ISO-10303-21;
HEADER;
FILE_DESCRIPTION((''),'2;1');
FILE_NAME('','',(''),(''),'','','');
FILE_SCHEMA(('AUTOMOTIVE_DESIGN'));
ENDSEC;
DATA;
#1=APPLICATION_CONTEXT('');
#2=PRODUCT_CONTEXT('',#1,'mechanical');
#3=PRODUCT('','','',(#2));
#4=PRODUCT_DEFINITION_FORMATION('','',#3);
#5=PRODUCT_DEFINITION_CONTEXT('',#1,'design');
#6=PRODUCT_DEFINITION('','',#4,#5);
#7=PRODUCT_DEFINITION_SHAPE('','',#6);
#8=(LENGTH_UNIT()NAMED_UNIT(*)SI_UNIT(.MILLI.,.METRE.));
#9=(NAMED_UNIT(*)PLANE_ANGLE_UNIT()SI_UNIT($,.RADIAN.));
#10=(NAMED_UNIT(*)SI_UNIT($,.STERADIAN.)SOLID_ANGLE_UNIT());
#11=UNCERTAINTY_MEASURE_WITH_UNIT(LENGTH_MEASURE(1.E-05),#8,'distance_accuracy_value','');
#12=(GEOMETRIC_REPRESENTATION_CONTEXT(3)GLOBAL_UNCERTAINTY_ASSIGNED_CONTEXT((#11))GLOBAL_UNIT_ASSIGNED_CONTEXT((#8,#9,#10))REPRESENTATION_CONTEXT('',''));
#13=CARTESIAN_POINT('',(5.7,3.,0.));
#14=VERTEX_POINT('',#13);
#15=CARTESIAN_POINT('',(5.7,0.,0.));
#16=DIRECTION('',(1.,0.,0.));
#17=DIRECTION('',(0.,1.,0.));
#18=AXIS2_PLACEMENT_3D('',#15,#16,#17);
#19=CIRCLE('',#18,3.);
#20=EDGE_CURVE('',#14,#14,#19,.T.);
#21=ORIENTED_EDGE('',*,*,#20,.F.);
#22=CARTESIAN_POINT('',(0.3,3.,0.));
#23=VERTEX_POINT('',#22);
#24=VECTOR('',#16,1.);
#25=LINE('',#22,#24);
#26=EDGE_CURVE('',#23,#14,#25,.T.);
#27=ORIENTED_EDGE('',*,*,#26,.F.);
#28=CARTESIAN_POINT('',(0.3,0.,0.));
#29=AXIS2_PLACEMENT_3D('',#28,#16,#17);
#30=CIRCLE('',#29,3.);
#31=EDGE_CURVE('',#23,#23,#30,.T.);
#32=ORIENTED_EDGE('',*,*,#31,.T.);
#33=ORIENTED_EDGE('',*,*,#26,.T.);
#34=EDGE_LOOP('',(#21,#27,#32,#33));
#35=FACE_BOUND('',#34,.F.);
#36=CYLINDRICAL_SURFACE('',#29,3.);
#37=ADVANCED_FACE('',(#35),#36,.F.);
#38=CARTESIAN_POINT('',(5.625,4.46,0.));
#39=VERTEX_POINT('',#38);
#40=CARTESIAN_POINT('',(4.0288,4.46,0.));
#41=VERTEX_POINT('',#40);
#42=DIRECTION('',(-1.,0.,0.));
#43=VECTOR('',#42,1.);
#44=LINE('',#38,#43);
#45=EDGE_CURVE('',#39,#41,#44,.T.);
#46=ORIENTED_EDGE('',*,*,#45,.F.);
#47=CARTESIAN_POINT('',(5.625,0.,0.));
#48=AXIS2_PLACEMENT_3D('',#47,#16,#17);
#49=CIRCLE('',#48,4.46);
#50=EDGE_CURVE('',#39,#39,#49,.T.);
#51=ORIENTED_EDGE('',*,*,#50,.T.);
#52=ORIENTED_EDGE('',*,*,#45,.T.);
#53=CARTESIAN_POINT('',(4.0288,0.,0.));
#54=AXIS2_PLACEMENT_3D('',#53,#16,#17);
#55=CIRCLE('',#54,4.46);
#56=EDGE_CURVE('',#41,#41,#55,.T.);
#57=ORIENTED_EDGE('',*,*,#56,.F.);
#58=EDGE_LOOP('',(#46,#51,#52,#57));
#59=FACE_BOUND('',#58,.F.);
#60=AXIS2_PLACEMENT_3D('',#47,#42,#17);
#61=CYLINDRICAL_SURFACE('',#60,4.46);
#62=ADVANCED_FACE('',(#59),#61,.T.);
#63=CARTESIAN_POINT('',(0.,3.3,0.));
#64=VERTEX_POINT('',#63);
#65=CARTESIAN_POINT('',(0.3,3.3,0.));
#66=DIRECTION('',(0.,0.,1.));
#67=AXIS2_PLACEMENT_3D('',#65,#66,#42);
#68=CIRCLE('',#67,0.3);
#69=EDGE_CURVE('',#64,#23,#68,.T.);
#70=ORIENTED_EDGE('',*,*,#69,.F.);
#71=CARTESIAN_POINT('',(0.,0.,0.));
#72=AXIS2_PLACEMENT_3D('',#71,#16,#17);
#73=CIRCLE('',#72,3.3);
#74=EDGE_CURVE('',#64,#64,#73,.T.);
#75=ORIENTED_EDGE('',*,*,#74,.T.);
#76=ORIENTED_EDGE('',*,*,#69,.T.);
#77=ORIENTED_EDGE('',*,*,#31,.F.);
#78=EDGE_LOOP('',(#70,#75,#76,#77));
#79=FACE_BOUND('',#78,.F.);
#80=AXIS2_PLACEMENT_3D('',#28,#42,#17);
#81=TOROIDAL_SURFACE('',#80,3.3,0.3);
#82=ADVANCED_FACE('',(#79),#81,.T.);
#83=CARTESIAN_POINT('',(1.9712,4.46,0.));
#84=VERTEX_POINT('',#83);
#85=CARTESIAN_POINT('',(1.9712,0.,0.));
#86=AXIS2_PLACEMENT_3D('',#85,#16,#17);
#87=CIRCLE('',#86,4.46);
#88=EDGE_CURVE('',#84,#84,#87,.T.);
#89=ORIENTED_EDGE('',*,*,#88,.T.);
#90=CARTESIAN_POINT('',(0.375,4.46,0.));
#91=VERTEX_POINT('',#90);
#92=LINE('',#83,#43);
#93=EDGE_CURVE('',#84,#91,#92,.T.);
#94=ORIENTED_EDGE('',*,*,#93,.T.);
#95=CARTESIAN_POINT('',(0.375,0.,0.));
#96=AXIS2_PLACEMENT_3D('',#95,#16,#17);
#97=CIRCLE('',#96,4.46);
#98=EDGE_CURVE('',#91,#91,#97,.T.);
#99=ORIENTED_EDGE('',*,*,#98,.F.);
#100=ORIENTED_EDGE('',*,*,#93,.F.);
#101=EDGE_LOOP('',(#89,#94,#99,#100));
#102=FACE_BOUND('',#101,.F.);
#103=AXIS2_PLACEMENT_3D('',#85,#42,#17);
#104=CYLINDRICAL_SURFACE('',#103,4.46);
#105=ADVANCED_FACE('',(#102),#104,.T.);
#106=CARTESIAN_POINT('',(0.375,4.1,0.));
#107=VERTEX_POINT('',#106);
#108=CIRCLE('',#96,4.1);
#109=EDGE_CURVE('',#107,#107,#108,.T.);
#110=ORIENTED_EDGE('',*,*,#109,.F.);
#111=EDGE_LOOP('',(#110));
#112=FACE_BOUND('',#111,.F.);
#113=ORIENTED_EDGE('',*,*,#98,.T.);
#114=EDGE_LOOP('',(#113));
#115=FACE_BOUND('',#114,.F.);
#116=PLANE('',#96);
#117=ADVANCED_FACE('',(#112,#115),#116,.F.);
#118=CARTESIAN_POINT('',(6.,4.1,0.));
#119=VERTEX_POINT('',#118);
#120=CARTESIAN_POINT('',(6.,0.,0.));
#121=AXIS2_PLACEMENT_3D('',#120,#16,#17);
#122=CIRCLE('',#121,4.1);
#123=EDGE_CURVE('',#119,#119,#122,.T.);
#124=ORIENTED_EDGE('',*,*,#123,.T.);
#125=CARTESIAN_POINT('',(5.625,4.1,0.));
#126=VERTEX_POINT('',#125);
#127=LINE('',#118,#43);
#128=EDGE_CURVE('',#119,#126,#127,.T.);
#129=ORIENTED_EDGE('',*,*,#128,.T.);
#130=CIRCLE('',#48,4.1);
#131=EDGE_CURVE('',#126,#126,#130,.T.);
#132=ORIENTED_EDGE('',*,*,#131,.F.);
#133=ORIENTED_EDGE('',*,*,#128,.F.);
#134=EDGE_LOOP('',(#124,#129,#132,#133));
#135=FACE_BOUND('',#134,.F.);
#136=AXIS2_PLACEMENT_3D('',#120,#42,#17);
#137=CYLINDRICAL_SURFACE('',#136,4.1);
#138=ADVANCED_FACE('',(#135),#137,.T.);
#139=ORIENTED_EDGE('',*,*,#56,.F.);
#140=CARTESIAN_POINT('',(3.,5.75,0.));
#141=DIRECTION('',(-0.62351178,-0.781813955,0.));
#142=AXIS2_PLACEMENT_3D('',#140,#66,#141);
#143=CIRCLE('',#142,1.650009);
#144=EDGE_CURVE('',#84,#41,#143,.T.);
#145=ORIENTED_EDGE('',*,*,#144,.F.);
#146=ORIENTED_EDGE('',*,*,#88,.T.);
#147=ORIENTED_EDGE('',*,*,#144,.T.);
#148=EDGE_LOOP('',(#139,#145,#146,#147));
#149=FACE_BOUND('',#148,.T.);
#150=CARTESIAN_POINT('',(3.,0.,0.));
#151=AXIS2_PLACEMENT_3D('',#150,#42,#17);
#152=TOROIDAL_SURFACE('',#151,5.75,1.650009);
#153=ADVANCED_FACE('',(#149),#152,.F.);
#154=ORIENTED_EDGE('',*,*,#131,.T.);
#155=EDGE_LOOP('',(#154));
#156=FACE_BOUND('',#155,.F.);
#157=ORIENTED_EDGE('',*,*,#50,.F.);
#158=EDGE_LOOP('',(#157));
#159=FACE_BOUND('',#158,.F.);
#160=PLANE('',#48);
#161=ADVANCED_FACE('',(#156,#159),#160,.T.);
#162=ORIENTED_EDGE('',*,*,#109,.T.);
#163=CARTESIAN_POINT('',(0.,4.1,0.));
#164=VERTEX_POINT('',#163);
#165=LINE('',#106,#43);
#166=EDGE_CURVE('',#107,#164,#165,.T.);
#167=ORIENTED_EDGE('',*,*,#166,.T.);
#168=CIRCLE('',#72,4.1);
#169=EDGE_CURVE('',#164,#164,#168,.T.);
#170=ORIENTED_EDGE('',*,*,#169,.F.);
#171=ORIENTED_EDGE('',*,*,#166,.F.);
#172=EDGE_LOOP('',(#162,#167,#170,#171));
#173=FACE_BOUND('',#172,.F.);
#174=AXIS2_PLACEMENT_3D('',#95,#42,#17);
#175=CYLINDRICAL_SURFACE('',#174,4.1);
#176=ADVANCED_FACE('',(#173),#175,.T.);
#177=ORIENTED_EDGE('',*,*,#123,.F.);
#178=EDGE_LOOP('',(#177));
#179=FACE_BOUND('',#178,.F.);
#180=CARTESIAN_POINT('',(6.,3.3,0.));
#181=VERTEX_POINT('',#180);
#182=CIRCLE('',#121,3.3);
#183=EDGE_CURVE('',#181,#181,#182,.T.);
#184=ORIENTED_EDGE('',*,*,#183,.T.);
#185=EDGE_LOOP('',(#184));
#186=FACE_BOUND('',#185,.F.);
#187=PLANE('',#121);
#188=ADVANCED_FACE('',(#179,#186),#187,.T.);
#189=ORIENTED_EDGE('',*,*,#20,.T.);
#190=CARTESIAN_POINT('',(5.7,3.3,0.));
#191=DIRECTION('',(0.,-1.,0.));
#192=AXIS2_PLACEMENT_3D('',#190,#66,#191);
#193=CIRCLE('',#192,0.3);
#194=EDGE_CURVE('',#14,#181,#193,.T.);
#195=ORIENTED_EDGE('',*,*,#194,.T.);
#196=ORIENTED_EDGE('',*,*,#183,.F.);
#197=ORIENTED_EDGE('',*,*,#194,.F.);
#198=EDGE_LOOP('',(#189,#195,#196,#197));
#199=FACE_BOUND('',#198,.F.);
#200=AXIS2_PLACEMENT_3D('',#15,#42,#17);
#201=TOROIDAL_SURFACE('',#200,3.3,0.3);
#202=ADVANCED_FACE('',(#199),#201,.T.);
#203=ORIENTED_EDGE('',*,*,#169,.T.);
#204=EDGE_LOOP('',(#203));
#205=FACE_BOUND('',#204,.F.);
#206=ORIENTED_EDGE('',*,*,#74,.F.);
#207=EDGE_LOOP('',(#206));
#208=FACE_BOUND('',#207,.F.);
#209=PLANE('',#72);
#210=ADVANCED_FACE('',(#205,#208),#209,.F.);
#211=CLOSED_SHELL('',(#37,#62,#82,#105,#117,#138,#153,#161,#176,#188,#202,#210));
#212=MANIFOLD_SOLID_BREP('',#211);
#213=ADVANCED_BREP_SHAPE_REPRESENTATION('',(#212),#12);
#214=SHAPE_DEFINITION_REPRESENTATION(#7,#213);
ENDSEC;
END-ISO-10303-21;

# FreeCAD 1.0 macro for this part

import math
import FreeCAD as App
import Part
import Sketcher
from FreeCAD import Vector
Q = App.Units.Quantity

doc = App.newDocument("Part")
body = doc.addObject("PartDesign::Body", "Body")

sketch1 = body.newObject("Sketcher::SketchObject", "Sketch")
sketch1.AttachmentSupport = (doc.getObject("XY_Plane"), [""])
sketch1.MapMode = "FlatFace"
sketch1.addGeometry([
    Part.LineSegment(Vector(0, 4.1, 0), Vector(0, 3.3, 0)),
    Part.ArcOfCircle(Part.Circle(Vector(0.3, 3.3, 0), Vector(0, 0, 1), 0.3), math.radians(180), math.radians(270)),
    Part.LineSegment(Vector(0.3, 3, 0), Vector(5.7, 3, 0)),
    Part.ArcOfCircle(Part.Circle(Vector(5.7, 3.3, 0), Vector(0, 0, 1), 0.3), math.radians(-90), math.radians(0)),
    Part.LineSegment(Vector(6, 3.3, 0), Vector(6, 4.1, 0)),
    Part.LineSegment(Vector(6, 4.1, 0), Vector(5.62, 4.1, 0)),
    Part.LineSegment(Vector(5.62, 4.1, 0), Vector(5.62, 4.46, 0)),
    Part.LineSegment(Vector(5.62, 4.46, 0), Vector(4.03, 4.46, 0)),
    Part.ArcOfCircle(Part.Circle(Vector(3, 5.75, 0), Vector(0, 0, 1), 1.65), math.radians(-129), math.radians(-51)),
    Part.LineSegment(Vector(1.97, 4.46, 0), Vector(0.38, 4.46, 0)),
    Part.LineSegment(Vector(0.38, 4.46, 0), Vector(0.38, 4.1, 0)),
    Part.LineSegment(Vector(0.38, 4.1, 0), Vector(0, 4.1, 0)),
], False)
sketch1.addConstraint([
    Sketcher.Constraint("Tangent", 0, 2, 1, 1),
    Sketcher.Constraint("Tangent", 1, 2, 2, 1),
    Sketcher.Constraint("Tangent", 2, 2, 3, 1),
    Sketcher.Constraint("Tangent", 3, 2, 4, 1),
    Sketcher.Constraint("Coincident", 4, 2, 5, 1),
    Sketcher.Constraint("Coincident", 5, 2, 6, 1),
    Sketcher.Constraint("Coincident", 6, 2, 7, 1),
    Sketcher.Constraint("Coincident", 7, 2, 8, 2),
    Sketcher.Constraint("Coincident", 8, 1, 9, 1),
    Sketcher.Constraint("Coincident", 9, 2, 10, 1),
    Sketcher.Constraint("Coincident", 10, 2, 11, 1),
    Sketcher.Constraint("Coincident", 11, 2, 0, 1),
    Sketcher.Constraint("Vertical", 0),
    Sketcher.Constraint("Horizontal", 2),
    Sketcher.Constraint("Vertical", 4),
    Sketcher.Constraint("Horizontal", 5),
    Sketcher.Constraint("Vertical", 6),
    Sketcher.Constraint("Horizontal", 7),
    Sketcher.Constraint("Horizontal", 9),
    Sketcher.Constraint("Vertical", 10),
    Sketcher.Constraint("Horizontal", 11),
    Sketcher.Constraint("Equal", 1, 3),
    Sketcher.Constraint("PointOnObject", 0, 2, -2),
    Sketcher.Constraint("Horizontal", 7, 2, 8, 1),
    Sketcher.Constraint("Horizontal", 5, 2, 10, 2),
    Sketcher.Constraint("Equal", 7, 9),
    Sketcher.Constraint("Equal", 5, 11),
    Sketcher.Constraint("Radius", 1, Q("0.3 mm")),
    Sketcher.Constraint("Radius", 8, Q("1.65 mm")),
    Sketcher.Constraint("DistanceX", 2, 1, 2, 2, Q("5.4 mm")),
    Sketcher.Constraint("DistanceY", 0, 2, 0, 1, Q("0.8 mm")),
    Sketcher.Constraint("DistanceY", -1, 1, 1, 2, Q("3 mm")),
    Sketcher.Constraint("DistanceY", 6, 1, 6, 2, Q("0.36 mm")),
    Sketcher.Constraint("DistanceX", 5, 2, 5, 1, Q("0.375 mm")),
    Sketcher.Constraint("DistanceY", -1, 1, 8, 3, Q("5.75 mm")),
])
revolution = body.newObject("PartDesign::Revolution", "Revolution")
revolution.Profile = sketch1
revolution.ReferenceAxis = (sketch1, ["H_Axis"])
revolution.Angle = 360

doc.recompute()
